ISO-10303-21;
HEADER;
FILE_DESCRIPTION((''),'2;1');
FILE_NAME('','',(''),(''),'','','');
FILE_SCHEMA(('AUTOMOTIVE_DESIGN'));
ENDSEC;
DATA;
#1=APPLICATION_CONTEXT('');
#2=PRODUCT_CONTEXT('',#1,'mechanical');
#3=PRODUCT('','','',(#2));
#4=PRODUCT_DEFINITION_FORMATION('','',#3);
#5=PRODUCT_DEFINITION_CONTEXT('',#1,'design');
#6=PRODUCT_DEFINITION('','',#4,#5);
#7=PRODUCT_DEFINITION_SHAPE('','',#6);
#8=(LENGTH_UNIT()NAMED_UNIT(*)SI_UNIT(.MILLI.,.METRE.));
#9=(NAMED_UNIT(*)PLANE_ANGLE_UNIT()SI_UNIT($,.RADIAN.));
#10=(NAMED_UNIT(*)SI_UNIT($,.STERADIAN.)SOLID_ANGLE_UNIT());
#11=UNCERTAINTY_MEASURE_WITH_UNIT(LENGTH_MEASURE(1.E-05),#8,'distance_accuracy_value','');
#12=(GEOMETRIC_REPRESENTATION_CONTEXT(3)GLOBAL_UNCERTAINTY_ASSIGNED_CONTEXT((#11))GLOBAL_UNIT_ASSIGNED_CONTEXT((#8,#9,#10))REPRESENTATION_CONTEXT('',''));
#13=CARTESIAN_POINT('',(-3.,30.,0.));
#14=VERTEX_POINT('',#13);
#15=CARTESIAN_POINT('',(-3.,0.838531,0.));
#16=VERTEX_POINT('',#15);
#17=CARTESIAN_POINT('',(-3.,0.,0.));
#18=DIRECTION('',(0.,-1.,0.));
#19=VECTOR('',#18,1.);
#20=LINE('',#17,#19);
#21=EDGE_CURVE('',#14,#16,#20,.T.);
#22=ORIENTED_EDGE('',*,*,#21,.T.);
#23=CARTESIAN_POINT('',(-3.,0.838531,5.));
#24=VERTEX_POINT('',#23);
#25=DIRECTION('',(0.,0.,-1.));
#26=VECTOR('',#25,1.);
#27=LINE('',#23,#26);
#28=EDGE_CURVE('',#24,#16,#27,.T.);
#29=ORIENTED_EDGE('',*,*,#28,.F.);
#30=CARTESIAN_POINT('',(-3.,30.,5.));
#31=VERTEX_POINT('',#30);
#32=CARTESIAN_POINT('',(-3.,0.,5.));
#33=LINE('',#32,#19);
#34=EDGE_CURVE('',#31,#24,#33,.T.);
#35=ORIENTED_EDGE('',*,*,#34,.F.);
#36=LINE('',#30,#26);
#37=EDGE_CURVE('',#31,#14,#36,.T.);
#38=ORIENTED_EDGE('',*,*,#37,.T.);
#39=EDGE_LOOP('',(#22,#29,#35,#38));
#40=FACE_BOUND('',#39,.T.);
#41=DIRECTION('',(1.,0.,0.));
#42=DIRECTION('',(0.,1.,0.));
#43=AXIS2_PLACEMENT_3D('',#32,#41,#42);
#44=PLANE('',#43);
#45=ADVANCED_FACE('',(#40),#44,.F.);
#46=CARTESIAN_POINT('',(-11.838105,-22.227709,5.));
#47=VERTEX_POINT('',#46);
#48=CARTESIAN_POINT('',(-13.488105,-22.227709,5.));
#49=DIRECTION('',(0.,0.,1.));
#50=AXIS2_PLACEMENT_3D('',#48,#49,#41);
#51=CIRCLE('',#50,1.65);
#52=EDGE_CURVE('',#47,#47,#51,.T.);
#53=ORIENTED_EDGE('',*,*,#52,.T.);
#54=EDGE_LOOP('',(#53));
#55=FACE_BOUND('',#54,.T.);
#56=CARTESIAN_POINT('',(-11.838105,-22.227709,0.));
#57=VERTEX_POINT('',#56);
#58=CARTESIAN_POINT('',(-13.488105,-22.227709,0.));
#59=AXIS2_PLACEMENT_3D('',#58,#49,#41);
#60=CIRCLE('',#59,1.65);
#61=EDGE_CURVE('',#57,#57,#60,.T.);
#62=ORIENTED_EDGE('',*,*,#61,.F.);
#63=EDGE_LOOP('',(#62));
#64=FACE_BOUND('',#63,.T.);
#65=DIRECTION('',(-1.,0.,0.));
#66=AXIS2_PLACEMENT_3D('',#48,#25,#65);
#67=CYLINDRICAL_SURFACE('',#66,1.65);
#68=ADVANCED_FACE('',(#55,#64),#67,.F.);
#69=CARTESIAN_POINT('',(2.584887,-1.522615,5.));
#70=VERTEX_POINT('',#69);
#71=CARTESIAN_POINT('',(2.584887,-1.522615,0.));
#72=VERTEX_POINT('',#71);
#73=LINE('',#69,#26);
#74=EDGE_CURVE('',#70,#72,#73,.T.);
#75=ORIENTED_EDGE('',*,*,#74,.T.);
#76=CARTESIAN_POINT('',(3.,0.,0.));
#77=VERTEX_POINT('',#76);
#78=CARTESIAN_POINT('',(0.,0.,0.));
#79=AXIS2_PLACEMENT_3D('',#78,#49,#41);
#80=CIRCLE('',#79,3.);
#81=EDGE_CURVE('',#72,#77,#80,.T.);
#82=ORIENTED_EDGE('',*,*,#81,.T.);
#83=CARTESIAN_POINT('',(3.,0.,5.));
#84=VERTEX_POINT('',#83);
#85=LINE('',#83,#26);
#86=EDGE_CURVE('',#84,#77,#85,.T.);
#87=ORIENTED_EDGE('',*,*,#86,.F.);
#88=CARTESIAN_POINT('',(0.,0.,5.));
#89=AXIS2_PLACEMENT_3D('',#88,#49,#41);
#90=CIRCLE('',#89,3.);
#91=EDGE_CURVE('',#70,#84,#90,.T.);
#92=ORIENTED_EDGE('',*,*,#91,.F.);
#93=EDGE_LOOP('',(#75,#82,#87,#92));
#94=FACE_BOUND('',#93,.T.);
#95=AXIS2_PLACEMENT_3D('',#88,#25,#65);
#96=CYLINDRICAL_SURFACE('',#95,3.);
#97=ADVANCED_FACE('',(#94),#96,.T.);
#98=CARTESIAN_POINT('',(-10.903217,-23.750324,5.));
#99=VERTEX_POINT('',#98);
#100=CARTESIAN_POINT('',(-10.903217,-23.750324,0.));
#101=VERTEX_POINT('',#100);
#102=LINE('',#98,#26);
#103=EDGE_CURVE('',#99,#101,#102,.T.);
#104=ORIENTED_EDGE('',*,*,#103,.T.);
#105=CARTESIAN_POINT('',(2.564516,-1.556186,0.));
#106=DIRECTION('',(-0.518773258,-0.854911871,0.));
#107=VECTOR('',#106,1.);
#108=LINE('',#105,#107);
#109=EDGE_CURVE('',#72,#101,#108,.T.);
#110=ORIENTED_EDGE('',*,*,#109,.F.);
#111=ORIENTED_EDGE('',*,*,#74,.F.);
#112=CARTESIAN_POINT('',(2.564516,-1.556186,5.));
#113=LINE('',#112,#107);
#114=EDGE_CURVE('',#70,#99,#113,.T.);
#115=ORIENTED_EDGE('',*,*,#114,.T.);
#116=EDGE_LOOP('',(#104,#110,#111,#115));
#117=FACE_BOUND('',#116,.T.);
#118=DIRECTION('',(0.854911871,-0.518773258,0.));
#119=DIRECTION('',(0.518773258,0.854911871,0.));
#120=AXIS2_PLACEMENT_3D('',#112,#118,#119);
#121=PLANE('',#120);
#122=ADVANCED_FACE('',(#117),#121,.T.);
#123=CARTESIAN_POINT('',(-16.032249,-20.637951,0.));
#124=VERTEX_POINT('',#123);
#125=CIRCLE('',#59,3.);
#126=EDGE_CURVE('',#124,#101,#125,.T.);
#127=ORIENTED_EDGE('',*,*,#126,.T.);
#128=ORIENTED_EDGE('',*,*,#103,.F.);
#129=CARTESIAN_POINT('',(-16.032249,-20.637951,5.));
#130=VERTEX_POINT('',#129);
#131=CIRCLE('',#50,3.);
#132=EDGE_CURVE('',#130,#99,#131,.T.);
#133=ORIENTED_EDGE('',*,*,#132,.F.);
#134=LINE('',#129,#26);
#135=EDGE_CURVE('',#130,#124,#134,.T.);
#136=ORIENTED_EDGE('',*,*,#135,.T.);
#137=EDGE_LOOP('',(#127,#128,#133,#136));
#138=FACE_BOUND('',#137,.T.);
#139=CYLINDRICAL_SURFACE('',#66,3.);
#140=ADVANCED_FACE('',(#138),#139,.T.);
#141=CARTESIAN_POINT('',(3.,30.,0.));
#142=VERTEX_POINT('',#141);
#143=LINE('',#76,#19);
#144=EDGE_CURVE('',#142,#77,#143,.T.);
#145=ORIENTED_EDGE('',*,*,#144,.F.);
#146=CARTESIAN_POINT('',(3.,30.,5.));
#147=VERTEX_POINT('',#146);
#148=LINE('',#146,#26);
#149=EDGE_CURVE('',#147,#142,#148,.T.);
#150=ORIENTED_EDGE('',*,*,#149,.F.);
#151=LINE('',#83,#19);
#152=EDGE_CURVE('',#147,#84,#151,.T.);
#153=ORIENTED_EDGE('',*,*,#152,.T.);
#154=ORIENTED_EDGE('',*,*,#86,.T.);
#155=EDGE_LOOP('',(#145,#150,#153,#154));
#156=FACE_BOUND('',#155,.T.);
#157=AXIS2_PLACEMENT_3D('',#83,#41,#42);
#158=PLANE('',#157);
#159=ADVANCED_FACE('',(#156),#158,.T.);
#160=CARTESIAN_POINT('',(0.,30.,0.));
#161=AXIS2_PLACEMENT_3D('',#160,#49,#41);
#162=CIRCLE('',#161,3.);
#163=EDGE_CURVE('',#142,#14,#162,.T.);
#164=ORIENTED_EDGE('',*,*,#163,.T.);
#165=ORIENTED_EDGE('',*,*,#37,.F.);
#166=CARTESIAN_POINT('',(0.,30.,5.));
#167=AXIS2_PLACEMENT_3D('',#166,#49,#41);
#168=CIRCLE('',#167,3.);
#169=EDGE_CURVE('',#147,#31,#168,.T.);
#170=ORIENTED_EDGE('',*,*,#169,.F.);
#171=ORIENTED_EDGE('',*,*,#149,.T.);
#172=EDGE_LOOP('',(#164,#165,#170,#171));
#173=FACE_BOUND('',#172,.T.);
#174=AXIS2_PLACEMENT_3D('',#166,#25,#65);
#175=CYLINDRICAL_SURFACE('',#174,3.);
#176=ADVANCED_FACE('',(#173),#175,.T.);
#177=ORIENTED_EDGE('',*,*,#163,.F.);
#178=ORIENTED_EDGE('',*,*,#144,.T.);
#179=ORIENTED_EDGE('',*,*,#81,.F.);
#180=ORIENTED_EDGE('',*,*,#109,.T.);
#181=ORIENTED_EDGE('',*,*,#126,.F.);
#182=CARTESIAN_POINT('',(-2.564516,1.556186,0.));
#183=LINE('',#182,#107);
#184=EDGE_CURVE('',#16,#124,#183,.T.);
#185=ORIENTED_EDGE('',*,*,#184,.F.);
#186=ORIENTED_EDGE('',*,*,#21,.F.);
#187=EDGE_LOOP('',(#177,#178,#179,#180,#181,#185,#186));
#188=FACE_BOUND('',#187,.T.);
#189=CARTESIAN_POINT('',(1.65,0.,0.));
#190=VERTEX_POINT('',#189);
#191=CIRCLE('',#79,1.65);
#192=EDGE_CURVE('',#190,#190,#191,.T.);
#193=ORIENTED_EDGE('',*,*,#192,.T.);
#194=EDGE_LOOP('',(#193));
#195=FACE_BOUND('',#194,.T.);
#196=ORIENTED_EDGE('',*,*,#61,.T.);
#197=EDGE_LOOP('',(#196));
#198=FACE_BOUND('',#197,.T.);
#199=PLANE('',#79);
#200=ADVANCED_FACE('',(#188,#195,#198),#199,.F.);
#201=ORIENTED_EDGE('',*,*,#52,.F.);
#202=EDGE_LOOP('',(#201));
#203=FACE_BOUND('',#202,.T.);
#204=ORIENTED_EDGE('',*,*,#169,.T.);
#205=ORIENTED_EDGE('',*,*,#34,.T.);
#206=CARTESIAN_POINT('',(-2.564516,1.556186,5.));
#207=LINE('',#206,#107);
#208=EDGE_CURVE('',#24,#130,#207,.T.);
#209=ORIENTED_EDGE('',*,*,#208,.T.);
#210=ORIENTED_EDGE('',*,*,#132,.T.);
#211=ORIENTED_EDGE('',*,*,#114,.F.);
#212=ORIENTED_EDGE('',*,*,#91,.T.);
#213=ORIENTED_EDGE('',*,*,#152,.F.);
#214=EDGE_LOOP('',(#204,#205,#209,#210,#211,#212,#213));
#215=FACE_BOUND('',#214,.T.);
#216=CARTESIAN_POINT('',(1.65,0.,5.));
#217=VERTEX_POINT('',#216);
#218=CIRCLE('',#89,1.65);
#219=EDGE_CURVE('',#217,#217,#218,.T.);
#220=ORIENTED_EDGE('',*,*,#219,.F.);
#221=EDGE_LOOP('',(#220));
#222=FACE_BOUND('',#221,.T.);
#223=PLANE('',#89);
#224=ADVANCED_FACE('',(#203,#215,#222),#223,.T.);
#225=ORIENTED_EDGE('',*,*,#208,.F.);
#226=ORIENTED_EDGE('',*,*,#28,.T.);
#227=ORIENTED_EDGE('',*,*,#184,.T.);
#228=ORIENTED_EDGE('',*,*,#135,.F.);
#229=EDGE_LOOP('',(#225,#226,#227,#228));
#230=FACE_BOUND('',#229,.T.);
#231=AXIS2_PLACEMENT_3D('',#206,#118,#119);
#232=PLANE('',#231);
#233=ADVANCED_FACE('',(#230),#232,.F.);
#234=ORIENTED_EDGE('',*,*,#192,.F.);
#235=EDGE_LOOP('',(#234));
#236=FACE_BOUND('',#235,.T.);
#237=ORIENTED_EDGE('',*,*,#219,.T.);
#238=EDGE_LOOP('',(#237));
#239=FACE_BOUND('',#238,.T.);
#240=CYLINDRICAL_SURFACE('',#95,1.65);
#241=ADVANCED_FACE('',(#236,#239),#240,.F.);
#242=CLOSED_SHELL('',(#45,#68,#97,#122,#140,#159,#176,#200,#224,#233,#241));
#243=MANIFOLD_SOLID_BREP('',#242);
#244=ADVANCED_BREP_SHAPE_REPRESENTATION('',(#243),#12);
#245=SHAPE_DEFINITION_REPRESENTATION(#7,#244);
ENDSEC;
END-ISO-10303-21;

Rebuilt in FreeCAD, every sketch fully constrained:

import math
import FreeCAD as App
import Part
import Sketcher

V = App.Vector
Q = App.Units.Quantity

doc = App.newDocument("Part")
body = doc.addObject("PartDesign::Body", "Body")

# Sketch on XY plane
sketch1 = body.newObject("Sketcher::SketchObject", "Sketch")
sketch1.AttachmentSupport = (doc.getObject("XY_Plane"), [""])
sketch1.MapMode = "FlatFace"
sketch1.addGeometry(Part.LineSegment(V(-3, 0.8, 0), V(-16, -20.6, 0)), False)
sketch1.addGeometry(Part.ArcOfCircle(Part.Circle(V(-13.5, -22.2, 0), V(0, 0, 1), 3), math.radians(148), math.radians(330)), False)
sketch1.addGeometry(Part.LineSegment(V(-10.9, -23.8, 0), V(2.6, -1.5, 0)), False)
sketch1.addGeometry(Part.ArcOfCircle(Part.Circle(V(0, 0, 0), V(0, 0, 1), 3), math.radians(-30), math.radians(0)), False)
sketch1.addGeometry(Part.LineSegment(V(3, 0, 0), V(3, 30, 0)), False)
sketch1.addGeometry(Part.ArcOfCircle(Part.Circle(V(0, 30, 0), V(0, 0, 1), 3), math.radians(0), math.radians(180)), False)
sketch1.addGeometry(Part.LineSegment(V(-3, 30, 0), V(-3, 0.8, 0)), False)
sketch1.addGeometry(Part.Circle(V(-13.5, -22.2, 0), V(0, 0, 1), 1.6), False)
sketch1.addGeometry(Part.Circle(V(0, 0, 0), V(0, 0, 1), 1.6), False)
sketch1.addConstraint(Sketcher.Constraint("Coincident", 0, 2, 1, 1))
sketch1.addConstraint(Sketcher.Constraint("Coincident", 1, 2, 2, 1))
sketch1.addConstraint(Sketcher.Constraint("Coincident", 2, 2, 3, 1))
sketch1.addConstraint(Sketcher.Constraint("Tangent", 3, 2, 4, 1))
sketch1.addConstraint(Sketcher.Constraint("Tangent", 4, 2, 5, 1))
sketch1.addConstraint(Sketcher.Constraint("Tangent", 5, 2, 6, 1))
sketch1.addConstraint(Sketcher.Constraint("Coincident", 6, 2, 0, 1))
sketch1.addConstraint(Sketcher.Constraint("Vertical", 4))
sketch1.addConstraint(Sketcher.Constraint("Vertical", 6))
sketch1.addConstraint(Sketcher.Constraint("Coincident", 3, 3, -1, 1))
sketch1.addConstraint(Sketcher.Constraint("Coincident", 8, 3, -1, 1))
sketch1.addConstraint(Sketcher.Constraint("Coincident", 7, 3, 1, 3))
sketch1.addConstraint(Sketcher.Constraint("Equal", 1, 3))
sketch1.addConstraint(Sketcher.Constraint("Equal", 3, 5))
sketch1.addConstraint(Sketcher.Constraint("Equal", 7, 8))
sketch1.addConstraint(Sketcher.Constraint("Parallel", 0, 2))
sketch1.addConstraint(Sketcher.Constraint("Radius", 1, 3.0))
sketch1.addConstraint(Sketcher.Constraint("Diameter", 7, 3.3))
sketch1.addConstraint(Sketcher.Constraint("DistanceY", 4, 1, 4, 2, 30.0))
sketch1.addConstraint(Sketcher.Constraint("Distance", 2, 26.0))
sketch1.addConstraint(Sketcher.Constraint("Angle", 0, Q("-121.25 deg")))
sketch1.addConstraint(Sketcher.Constraint("DistanceY", 6, 2, 6, 1, 29.161469))
sketch1.addConstraint(Sketcher.Constraint("Distance", 0, 25.121281))
sketch1.addConstraint(Sketcher.Constraint("DistanceX", 0, 2, 1, 2, 5.129032))
pad1 = body.newObject("PartDesign::Pad", "Pad")
pad1.Profile = sketch1
pad1.Length = 5

doc.recompute()
